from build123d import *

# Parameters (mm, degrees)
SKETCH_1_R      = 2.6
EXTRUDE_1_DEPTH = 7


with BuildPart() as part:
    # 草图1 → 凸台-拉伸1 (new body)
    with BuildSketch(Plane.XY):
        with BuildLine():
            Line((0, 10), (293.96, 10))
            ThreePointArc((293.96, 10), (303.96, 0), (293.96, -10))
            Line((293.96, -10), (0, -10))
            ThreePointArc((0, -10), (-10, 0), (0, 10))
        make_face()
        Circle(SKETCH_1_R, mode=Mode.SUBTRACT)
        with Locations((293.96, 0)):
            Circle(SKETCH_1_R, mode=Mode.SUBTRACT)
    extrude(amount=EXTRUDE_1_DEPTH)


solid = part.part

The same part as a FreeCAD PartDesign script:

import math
import FreeCAD as App
import Part
import Sketcher
Q = App.Units.Quantity

doc = App.newDocument("Part")
body = doc.addObject("PartDesign::Body", "Body")

# Sketch on XY plane
sketch1 = doc.addObject("Sketcher::SketchObject", "Sketch")
body.addObject(sketch1)
sketch1.AttachmentSupport = (doc.XY_Plane, [""])
sketch1.MapMode = "FlatFace"
sketch1.addGeometry(Part.LineSegment(App.Vector(294, 10, 0), App.Vector(0, 10, 0)), False)
sketch1.addGeometry(Part.ArcOfCircle(Part.Circle(App.Vector(0, 0, 0), App.Vector(0, 0, 1), 10), math.radians(90), math.radians(270)), False)
sketch1.addGeometry(Part.LineSegment(App.Vector(0, -10, 0), App.Vector(294, -10, 0)), False)
sketch1.addGeometry(Part.ArcOfCircle(Part.Circle(App.Vector(294, 0, 0), App.Vector(0, 0, 1), 10), math.radians(-90), math.radians(90)), False)
sketch1.addGeometry(Part.Circle(App.Vector(294, 0, 0), App.Vector(0, 0, 1), 2.6), False)
sketch1.addGeometry(Part.Circle(App.Vector(0, 0, 0), App.Vector(0, 0, 1), 2.6), False)
sketch1.addConstraint(Sketcher.Constraint("Tangent", 0, 2, 1, 1))
sketch1.addConstraint(Sketcher.Constraint("Tangent", 1, 2, 2, 1))
sketch1.addConstraint(Sketcher.Constraint("Tangent", 2, 2, 3, 1))
sketch1.addConstraint(Sketcher.Constraint("Tangent", 3, 2, 0, 1))
sketch1.addConstraint(Sketcher.Constraint("Horizontal", 0))
sketch1.addConstraint(Sketcher.Constraint("Horizontal", 2))
sketch1.addConstraint(Sketcher.Constraint("Coincident", 1, 3, -1, 1))
sketch1.addConstraint(Sketcher.Constraint("Coincident", 5, 3, -1, 1))
sketch1.addConstraint(Sketcher.Constraint("Coincident", 4, 3, 3, 3))
sketch1.addConstraint(Sketcher.Constraint("Equal", 4, 5))
sketch1.addConstraint(Sketcher.Constraint("Radius", 1, Q("10 mm")))
sketch1.addConstraint(Sketcher.Constraint("Diameter", 4, Q("5.2 mm")))
sketch1.addConstraint(Sketcher.Constraint("DistanceX", 0, 2, 0, 1, Q("293.96 mm")))
pad1 = doc.addObject("PartDesign::Pad", "Pad")
body.addObject(pad1)
pad1.Profile = sketch1
pad1.Length = 7

doc.recompute()
